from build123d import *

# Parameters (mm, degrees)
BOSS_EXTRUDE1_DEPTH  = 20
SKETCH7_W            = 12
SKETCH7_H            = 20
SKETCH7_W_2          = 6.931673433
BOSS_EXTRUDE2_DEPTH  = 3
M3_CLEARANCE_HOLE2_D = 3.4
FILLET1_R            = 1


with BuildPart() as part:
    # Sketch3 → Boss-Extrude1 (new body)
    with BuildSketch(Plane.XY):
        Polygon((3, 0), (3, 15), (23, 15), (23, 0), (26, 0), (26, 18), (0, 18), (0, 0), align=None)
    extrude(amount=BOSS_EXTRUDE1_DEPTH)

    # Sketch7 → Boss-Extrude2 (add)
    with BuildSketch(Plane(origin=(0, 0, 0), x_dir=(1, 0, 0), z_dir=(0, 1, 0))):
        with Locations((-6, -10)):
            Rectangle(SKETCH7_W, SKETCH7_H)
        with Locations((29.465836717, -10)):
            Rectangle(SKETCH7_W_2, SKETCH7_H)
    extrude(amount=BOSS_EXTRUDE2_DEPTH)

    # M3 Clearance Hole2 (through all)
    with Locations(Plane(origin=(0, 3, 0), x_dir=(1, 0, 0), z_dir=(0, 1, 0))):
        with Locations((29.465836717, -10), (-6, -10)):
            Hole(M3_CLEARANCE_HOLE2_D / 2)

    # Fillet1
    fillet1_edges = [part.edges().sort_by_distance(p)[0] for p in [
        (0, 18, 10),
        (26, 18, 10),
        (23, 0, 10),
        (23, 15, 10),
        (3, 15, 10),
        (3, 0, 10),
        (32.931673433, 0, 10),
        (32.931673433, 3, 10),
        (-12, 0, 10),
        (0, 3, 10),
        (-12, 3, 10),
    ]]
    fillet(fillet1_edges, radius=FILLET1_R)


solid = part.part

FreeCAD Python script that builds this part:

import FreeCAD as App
import Part
import Sketcher
from FreeCAD import Vector
Q = App.Units.Quantity


def edges_at(feature, points):
    """Names of the edges that pass closest to the given points."""
    edges = feature.Shape.Edges
    near = lambda p: min(range(len(edges)), key=lambda i: edges[i].distToShape(Part.Vertex(*p))[0])
    return sorted({f"Edge{near(p) + 1}" for p in points})


def add_polygon(sketch, points):
    """Adds a closed chain of lines whose ends are joined by coincident constraints."""
    first, n = sketch.GeometryCount, len(points)
    for a, b in zip(points, points[1:] + points[:1]):
        sketch.addGeometry(Part.LineSegment(App.Vector(*a, 0), App.Vector(*b, 0)), False)
    for i in range(n):
        sketch.addConstraint(Sketcher.Constraint("Coincident", first + i, 2, first + (i + 1) % n, 1))

doc = App.newDocument("Part")
body = doc.addObject("PartDesign::Body", "Body")

# Sketch on XY plane
sketch1 = doc.addObject("Sketcher::SketchObject", "Sketch")
body.addObject(sketch1)
sketch1.AttachmentSupport = (doc.XY_Plane, [""])
sketch1.MapMode = "FlatFace"
add_polygon(sketch1, [(3, 0), (3, 15), (23, 15), (23, 0), (26, 0), (26, 18), (0, 18), (0, 0)])  # lines 0-7
sketch1.addConstraint(Sketcher.Constraint("Vertical", 0))
sketch1.addConstraint(Sketcher.Constraint("Horizontal", 1))
sketch1.addConstraint(Sketcher.Constraint("Vertical", 2))
sketch1.addConstraint(Sketcher.Constraint("Horizontal", 3))
sketch1.addConstraint(Sketcher.Constraint("Vertical", 4))
sketch1.addConstraint(Sketcher.Constraint("Horizontal", 5))
sketch1.addConstraint(Sketcher.Constraint("Vertical", 6))
sketch1.addConstraint(Sketcher.Constraint("Horizontal", 7))
sketch1.addConstraint(Sketcher.Constraint("Coincident", 6, 2, -1, 1))
sketch1.addConstraint(Sketcher.Constraint("PointOnObject", 2, 2, -1))
sketch1.addConstraint(Sketcher.Constraint("Equal", 3, 7))
sketch1.addConstraint(Sketcher.Constraint("DistanceX", 1, 1, 1, 2, Q("20 mm")))
sketch1.addConstraint(Sketcher.Constraint("DistanceX", 3, 1, 3, 2, Q("3 mm")))
sketch1.addConstraint(Sketcher.Constraint("DistanceY", 0, 1, 0, 2, Q("15 mm")))
sketch1.addConstraint(Sketcher.Constraint("DistanceY", 4, 1, 4, 2, Q("18 mm")))
pad1 = doc.addObject("PartDesign::Pad", "Pad")
body.addObject(pad1)
pad1.Profile = sketch1
pad1.Length = 20

# Sketch on XZ plane
sketch2 = doc.addObject("Sketcher::SketchObject", "Sketch001")
body.addObject(sketch2)
sketch2.AttachmentSupport = (doc.XZ_Plane, [""])
sketch2.MapMode = "FlatFace"
add_polygon(sketch2, [(-12, 0), (-12, 20), (0, 20), (0, 0)])  # lines 0-3
add_polygon(sketch2, [(26, 0), (26, 20), (33, 20), (33, 0)])  # lines 4-7
sketch2.addConstraint(Sketcher.Constraint("Vertical", 0))
sketch2.addConstraint(Sketcher.Constraint("Horizontal", 1))
sketch2.addConstraint(Sketcher.Constraint("Vertical", 2))
sketch2.addConstraint(Sketcher.Constraint("Horizontal", 3))
sketch2.addConstraint(Sketcher.Constraint("Vertical", 4))
sketch2.addConstraint(Sketcher.Constraint("Horizontal", 5))
sketch2.addConstraint(Sketcher.Constraint("Vertical", 6))
sketch2.addConstraint(Sketcher.Constraint("Horizontal", 7))
sketch2.addConstraint(Sketcher.Constraint("Coincident", 2, 2, -1, 1))
sketch2.addConstraint(Sketcher.Constraint("PointOnObject", 6, 2, -1))
sketch2.addConstraint(Sketcher.Constraint("Horizontal", 1, 2, 4, 2))
sketch2.addConstraint(Sketcher.Constraint("DistanceX", 1, 1, 1, 2, Q("12 mm")))
sketch2.addConstraint(Sketcher.Constraint("DistanceY", 0, 1, 0, 2, Q("20 mm")))
sketch2.addConstraint(Sketcher.Constraint("DistanceX", -1, 1, 4, 2, Q("26 mm")))
sketch2.addConstraint(Sketcher.Constraint("DistanceX", 5, 1, 5, 2, Q("6.931673 mm")))
pad2 = doc.addObject("PartDesign::Pad", "Pad001")
body.addObject(pad2)
pad2.Profile = sketch2
pad2.Length = 3
pad2.Reversed = True

# Sketch on XZ plane
sketch3 = doc.addObject("Sketcher::SketchObject", "Sketch002")
body.addObject(sketch3)
sketch3.AttachmentSupport = (doc.XZ_Plane, [""])
sketch3.MapMode = "FlatFace"
sketch3.AttachmentOffset = App.Placement(Vector(0, 0, -3), App.Rotation())
sketch3.addGeometry(Part.Circle(Vector(29.5, 10, 0), Vector(0, 0, 1), 1.7), False)
sketch3.addGeometry(Part.Circle(Vector(-6, 10, 0), Vector(0, 0, 1), 1.7), False)
sketch3.addConstraint(Sketcher.Constraint("Equal", 0, 1))
sketch3.addConstraint(Sketcher.Constraint("Horizontal", 0, 3, 1, 3))
sketch3.addConstraint(Sketcher.Constraint("Diameter", 0, Q("3.4 mm")))
sketch3.addConstraint(Sketcher.Constraint("DistanceY", -1, 1, 0, 3, Q("10 mm")))
sketch3.addConstraint(Sketcher.Constraint("DistanceX", 1, 3, -1, 1, Q("6 mm")))
sketch3.addConstraint(Sketcher.Constraint("DistanceX", -1, 1, 0, 3, Q("29.465837 mm")))
doc.recompute()
hole = doc.addObject("PartDesign::Hole", "Hole")
body.addObject(hole)
hole.Profile = sketch3
hole.ThreadType = "None"
hole.Diameter = 3.4
hole.DepthType = "ThroughAll"
hole.Reversed = True
doc.recompute()

fillet = doc.addObject("PartDesign::Fillet", "Fillet")
body.addObject(fillet)
fillet.Base = (hole, edges_at(hole, [
    (0, 18, 10),
    (26, 18, 10),
    (23, 0, 10),
    (23, 15, 10),
    (3, 15, 10),
    (3, 0, 10),
    (32.932, 0, 10),
    (32.932, 3, 10),
    (-12, 0, 10),
    (0, 3, 10),
    (-12, 3, 10),
]))
fillet.Radius = 1

doc.recompute()
